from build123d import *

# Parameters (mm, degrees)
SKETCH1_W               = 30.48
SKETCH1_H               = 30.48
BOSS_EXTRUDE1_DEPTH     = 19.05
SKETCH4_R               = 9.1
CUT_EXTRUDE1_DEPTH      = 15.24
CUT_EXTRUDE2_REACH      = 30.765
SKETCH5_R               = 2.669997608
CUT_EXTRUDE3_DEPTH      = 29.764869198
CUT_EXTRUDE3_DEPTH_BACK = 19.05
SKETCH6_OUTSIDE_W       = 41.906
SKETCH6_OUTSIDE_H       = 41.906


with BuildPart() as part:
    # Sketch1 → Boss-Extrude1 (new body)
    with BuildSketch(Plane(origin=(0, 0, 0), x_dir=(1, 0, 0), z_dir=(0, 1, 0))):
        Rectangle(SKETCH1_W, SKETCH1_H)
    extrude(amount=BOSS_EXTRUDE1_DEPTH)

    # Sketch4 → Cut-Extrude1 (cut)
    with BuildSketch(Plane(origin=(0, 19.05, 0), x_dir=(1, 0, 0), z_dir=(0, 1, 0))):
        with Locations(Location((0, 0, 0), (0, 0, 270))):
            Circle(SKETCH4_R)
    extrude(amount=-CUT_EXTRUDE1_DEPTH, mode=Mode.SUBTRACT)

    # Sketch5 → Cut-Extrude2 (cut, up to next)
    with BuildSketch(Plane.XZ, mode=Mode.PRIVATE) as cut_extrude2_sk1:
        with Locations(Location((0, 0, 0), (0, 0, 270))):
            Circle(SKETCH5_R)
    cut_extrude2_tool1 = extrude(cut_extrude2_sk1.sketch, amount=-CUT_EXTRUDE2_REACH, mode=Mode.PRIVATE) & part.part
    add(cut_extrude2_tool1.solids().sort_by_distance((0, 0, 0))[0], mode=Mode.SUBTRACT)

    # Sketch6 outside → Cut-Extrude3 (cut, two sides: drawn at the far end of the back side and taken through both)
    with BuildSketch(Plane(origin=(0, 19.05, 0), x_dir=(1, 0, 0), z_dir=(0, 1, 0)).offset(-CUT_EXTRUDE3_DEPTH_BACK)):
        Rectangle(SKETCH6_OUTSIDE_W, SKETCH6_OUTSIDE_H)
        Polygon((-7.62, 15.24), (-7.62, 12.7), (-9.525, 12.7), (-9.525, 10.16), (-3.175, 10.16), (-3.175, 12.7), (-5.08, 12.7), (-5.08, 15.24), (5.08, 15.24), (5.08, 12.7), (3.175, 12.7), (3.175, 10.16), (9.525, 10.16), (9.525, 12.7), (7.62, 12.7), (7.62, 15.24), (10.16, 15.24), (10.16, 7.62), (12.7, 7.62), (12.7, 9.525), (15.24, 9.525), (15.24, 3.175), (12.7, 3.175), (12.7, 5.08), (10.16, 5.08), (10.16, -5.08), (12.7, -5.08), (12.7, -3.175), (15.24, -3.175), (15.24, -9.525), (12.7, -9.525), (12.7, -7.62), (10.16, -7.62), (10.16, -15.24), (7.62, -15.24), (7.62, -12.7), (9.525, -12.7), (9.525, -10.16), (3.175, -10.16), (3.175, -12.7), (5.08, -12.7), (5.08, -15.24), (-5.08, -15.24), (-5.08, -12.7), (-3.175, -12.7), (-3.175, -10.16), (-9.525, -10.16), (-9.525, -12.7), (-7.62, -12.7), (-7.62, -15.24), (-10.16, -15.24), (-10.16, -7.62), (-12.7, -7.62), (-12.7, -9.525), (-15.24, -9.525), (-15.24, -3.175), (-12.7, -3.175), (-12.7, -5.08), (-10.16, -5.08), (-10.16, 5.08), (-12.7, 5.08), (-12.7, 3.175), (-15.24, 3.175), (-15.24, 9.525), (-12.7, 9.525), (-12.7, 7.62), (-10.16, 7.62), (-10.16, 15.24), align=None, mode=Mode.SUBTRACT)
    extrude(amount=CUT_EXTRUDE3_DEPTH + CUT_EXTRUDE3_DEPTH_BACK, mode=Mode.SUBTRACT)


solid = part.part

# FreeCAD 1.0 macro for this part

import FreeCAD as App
import Part
import Sketcher
Q = App.Units.Quantity

doc = App.newDocument("Part")
body = doc.addObject("PartDesign::Body", "Body")

# Sketch on XZ plane
sketch1 = body.newObject("Sketcher::SketchObject", "Sketch")
sketch1.AttachmentSupport = (doc.getObject("XZ_Plane"), [""])
sketch1.MapMode = "FlatFace"
sketch1.addGeometry([
    Part.LineSegment(App.Vector(-15, -15, 0), App.Vector(-15, 15, 0)),
    Part.LineSegment(App.Vector(-15, 15, 0), App.Vector(15, 15, 0)),
    Part.LineSegment(App.Vector(15, 15, 0), App.Vector(15, -15, 0)),
    Part.LineSegment(App.Vector(15, -15, 0), App.Vector(-15, -15, 0)),
], False)
sketch1.addConstraint([
    Sketcher.Constraint("Coincident", 0, 2, 1, 1),
    Sketcher.Constraint("Coincident", 1, 2, 2, 1),
    Sketcher.Constraint("Coincident", 2, 2, 3, 1),
    Sketcher.Constraint("Coincident", 3, 2, 0, 1),
    Sketcher.Constraint("Vertical", 0),
    Sketcher.Constraint("Horizontal", 1),
    Sketcher.Constraint("Vertical", 2),
    Sketcher.Constraint("Horizontal", 3),
    Sketcher.Constraint("Symmetric", 0, 2, 2, 2, -1, 1),
    Sketcher.Constraint("Equal", 3, 0),
    Sketcher.Constraint("DistanceX", 1, 1, 1, 2, Q("1.2 in")),
])
pad1 = body.newObject("PartDesign::Pad", "Pad")
pad1.Profile = sketch1
pad1.Length = Q("0.75 in")
pad1.Reversed = True

# Sketch on XZ plane
sketch2 = body.newObject("Sketcher::SketchObject", "Sketch001")
sketch2.AttachmentSupport = (doc.getObject("XZ_Plane"), [""])
sketch2.MapMode = "FlatFace"
sketch2.AttachmentOffset = App.Placement(App.Vector(0, 0, -0.75 * 25.4), App.Rotation())
sketch2.addGeometry(Part.Circle(App.Vector(0, 0, 0), App.Vector(0, 0, 1), 9), False)
sketch2.addConstraint([
    Sketcher.Constraint("Coincident", 0, 3, -1, 1),
    Sketcher.Constraint("Diameter", 0, Q("18.2 mm")),
])
pocket1 = body.newObject("PartDesign::Pocket", "Pocket")
pocket1.Profile = sketch2
pocket1.Length = Q("0.6 in")
pocket1.Reversed = True

# Sketch on XZ plane
sketch3 = body.newObject("Sketcher::SketchObject", "Sketch002")
sketch3.AttachmentSupport = (doc.getObject("XZ_Plane"), [""])
sketch3.MapMode = "FlatFace"
sketch3.addGeometry(Part.Circle(App.Vector(0, 0, 0), App.Vector(0, 0, 1), 2.7), False)
sketch3.addConstraint([
    Sketcher.Constraint("Coincident", 0, 3, -1, 1),
    Sketcher.Constraint("Diameter", 0, Q("5.339995 mm")),
])
pocket2 = body.newObject("PartDesign::Pocket", "Pocket001")
pocket2.Profile = sketch3
pocket2.Type = "UpToFirst"

# Sketch on XZ plane
sketch4 = body.newObject("Sketcher::SketchObject", "Sketch003")
sketch4.AttachmentSupport = (doc.getObject("XZ_Plane"), [""])
sketch4.MapMode = "FlatFace"
sketch4.AttachmentOffset = App.Placement(App.Vector(0, 0, -0.75 * 25.4), App.Rotation())
sketch4.addGeometry([
    Part.LineSegment(App.Vector(-21, -21, 0), App.Vector(-21, 21, 0)),  # 0
    Part.LineSegment(App.Vector(-21, 21, 0), App.Vector(21, 21, 0)),  # 1
    Part.LineSegment(App.Vector(21, 21, 0), App.Vector(21, -21, 0)),  # 2
    Part.LineSegment(App.Vector(21, -21, 0), App.Vector(-21, -21, 0)),  # 3
    Part.LineSegment(App.Vector(-10.2, -15.2, 0), App.Vector(-7.6, -15.2, 0)),  # 4
    Part.LineSegment(App.Vector(-7.6, -15.2, 0), App.Vector(-7.6, -12.7, 0)),  # 5
    Part.LineSegment(App.Vector(-7.6, -12.7, 0), App.Vector(-9.5, -12.7, 0)),  # 6
    Part.LineSegment(App.Vector(-9.5, -12.7, 0), App.Vector(-9.5, -10.2, 0)),  # 7
    Part.LineSegment(App.Vector(-9.5, -10.2, 0), App.Vector(-3.2, -10.2, 0)),  # 8
    Part.LineSegment(App.Vector(-3.2, -10.2, 0), App.Vector(-3.2, -12.7, 0)),  # 9
    Part.LineSegment(App.Vector(-3.2, -12.7, 0), App.Vector(-5.1, -12.7, 0)),  # 10
    Part.LineSegment(App.Vector(-5.1, -12.7, 0), App.Vector(-5.1, -15.2, 0)),  # 11
    Part.LineSegment(App.Vector(-5.1, -15.2, 0), App.Vector(5.1, -15.2, 0)),  # 12
    Part.LineSegment(App.Vector(5.1, -15.2, 0), App.Vector(5.1, -12.7, 0)),  # 13
    Part.LineSegment(App.Vector(5.1, -12.7, 0), App.Vector(3.2, -12.7, 0)),  # 14
    Part.LineSegment(App.Vector(3.2, -12.7, 0), App.Vector(3.2, -10.2, 0)),  # 15
    Part.LineSegment(App.Vector(3.2, -10.2, 0), App.Vector(9.5, -10.2, 0)),  # 16
    Part.LineSegment(App.Vector(9.5, -10.2, 0), App.Vector(9.5, -12.7, 0)),  # 17
    Part.LineSegment(App.Vector(9.5, -12.7, 0), App.Vector(7.6, -12.7, 0)),  # 18
    Part.LineSegment(App.Vector(7.6, -12.7, 0), App.Vector(7.6, -15.2, 0)),  # 19
    Part.LineSegment(App.Vector(7.6, -15.2, 0), App.Vector(10.2, -15.2, 0)),  # 20
    Part.LineSegment(App.Vector(10.2, -15.2, 0), App.Vector(10.2, -7.6, 0)),  # 21
    Part.LineSegment(App.Vector(10.2, -7.6, 0), App.Vector(12.7, -7.6, 0)),  # 22
    Part.LineSegment(App.Vector(12.7, -7.6, 0), App.Vector(12.7, -9.5, 0)),  # 23
    Part.LineSegment(App.Vector(12.7, -9.5, 0), App.Vector(15.2, -9.5, 0)),  # 24
    Part.LineSegment(App.Vector(15.2, -9.5, 0), App.Vector(15.2, -3.2, 0)),  # 25
    Part.LineSegment(App.Vector(15.2, -3.2, 0), App.Vector(12.7, -3.2, 0)),  # 26
    Part.LineSegment(App.Vector(12.7, -3.2, 0), App.Vector(12.7, -5.1, 0)),  # 27
    Part.LineSegment(App.Vector(12.7, -5.1, 0), App.Vector(10.2, -5.1, 0)),  # 28
    Part.LineSegment(App.Vector(10.2, -5.1, 0), App.Vector(10.2, 5.1, 0)),  # 29
    Part.LineSegment(App.Vector(10.2, 5.1, 0), App.Vector(12.7, 5.1, 0)),  # 30
    Part.LineSegment(App.Vector(12.7, 5.1, 0), App.Vector(12.7, 3.2, 0)),  # 31
    Part.LineSegment(App.Vector(12.7, 3.2, 0), App.Vector(15.2, 3.2, 0)),  # 32
    Part.LineSegment(App.Vector(15.2, 3.2, 0), App.Vector(15.2, 9.5, 0)),  # 33
    Part.LineSegment(App.Vector(15.2, 9.5, 0), App.Vector(12.7, 9.5, 0)),  # 34
    Part.LineSegment(App.Vector(12.7, 9.5, 0), App.Vector(12.7, 7.6, 0)),  # 35
    Part.LineSegment(App.Vector(12.7, 7.6, 0), App.Vector(10.2, 7.6, 0)),  # 36
    Part.LineSegment(App.Vector(10.2, 7.6, 0), App.Vector(10.2, 15.2, 0)),  # 37
    Part.LineSegment(App.Vector(10.2, 15.2, 0), App.Vector(7.6, 15.2, 0)),  # 38
    Part.LineSegment(App.Vector(7.6, 15.2, 0), App.Vector(7.6, 12.7, 0)),  # 39
    Part.LineSegment(App.Vector(7.6, 12.7, 0), App.Vector(9.5, 12.7, 0)),  # 40
    Part.LineSegment(App.Vector(9.5, 12.7, 0), App.Vector(9.5, 10.2, 0)),  # 41
    Part.LineSegment(App.Vector(9.5, 10.2, 0), App.Vector(3.2, 10.2, 0)),  # 42
    Part.LineSegment(App.Vector(3.2, 10.2, 0), App.Vector(3.2, 12.7, 0)),  # 43
    Part.LineSegment(App.Vector(3.2, 12.7, 0), App.Vector(5.1, 12.7, 0)),  # 44
    Part.LineSegment(App.Vector(5.1, 12.7, 0), App.Vector(5.1, 15.2, 0)),  # 45
    Part.LineSegment(App.Vector(5.1, 15.2, 0), App.Vector(-5.1, 15.2, 0)),  # 46
    Part.LineSegment(App.Vector(-5.1, 15.2, 0), App.Vector(-5.1, 12.7, 0)),  # 47
    Part.LineSegment(App.Vector(-5.1, 12.7, 0), App.Vector(-3.2, 12.7, 0)),  # 48
    Part.LineSegment(App.Vector(-3.2, 12.7, 0), App.Vector(-3.2, 10.2, 0)),  # 49
    Part.LineSegment(App.Vector(-3.2, 10.2, 0), App.Vector(-9.5, 10.2, 0)),  # 50
    Part.LineSegment(App.Vector(-9.5, 10.2, 0), App.Vector(-9.5, 12.7, 0)),  # 51
    Part.LineSegment(App.Vector(-9.5, 12.7, 0), App.Vector(-7.6, 12.7, 0)),  # 52
    Part.LineSegment(App.Vector(-7.6, 12.7, 0), App.Vector(-7.6, 15.2, 0)),  # 53
    Part.LineSegment(App.Vector(-7.6, 15.2, 0), App.Vector(-10.2, 15.2, 0)),  # 54
    Part.LineSegment(App.Vector(-10.2, 15.2, 0), App.Vector(-10.2, 7.6, 0)),  # 55
    Part.LineSegment(App.Vector(-10.2, 7.6, 0), App.Vector(-12.7, 7.6, 0)),  # 56
    Part.LineSegment(App.Vector(-12.7, 7.6, 0), App.Vector(-12.7, 9.5, 0)),  # 57
    Part.LineSegment(App.Vector(-12.7, 9.5, 0), App.Vector(-15.2, 9.5, 0)),  # 58
    Part.LineSegment(App.Vector(-15.2, 9.5, 0), App.Vector(-15.2, 3.2, 0)),  # 59
    Part.LineSegment(App.Vector(-15.2, 3.2, 0), App.Vector(-12.7, 3.2, 0)),  # 60
    Part.LineSegment(App.Vector(-12.7, 3.2, 0), App.Vector(-12.7, 5.1, 0)),  # 61
    Part.LineSegment(App.Vector(-12.7, 5.1, 0), App.Vector(-10.2, 5.1, 0)),  # 62
    Part.LineSegment(App.Vector(-10.2, 5.1, 0), App.Vector(-10.2, -5.1, 0)),  # 63
    Part.LineSegment(App.Vector(-10.2, -5.1, 0), App.Vector(-12.7, -5.1, 0)),  # 64
    Part.LineSegment(App.Vector(-12.7, -5.1, 0), App.Vector(-12.7, -3.2, 0)),  # 65
    Part.LineSegment(App.Vector(-12.7, -3.2, 0), App.Vector(-15.2, -3.2, 0)),  # 66
    Part.LineSegment(App.Vector(-15.2, -3.2, 0), App.Vector(-15.2, -9.5, 0)),  # 67
    Part.LineSegment(App.Vector(-15.2, -9.5, 0), App.Vector(-12.7, -9.5, 0)),  # 68
    Part.LineSegment(App.Vector(-12.7, -9.5, 0), App.Vector(-12.7, -7.6, 0)),  # 69
    Part.LineSegment(App.Vector(-12.7, -7.6, 0), App.Vector(-10.2, -7.6, 0)),  # 70
    Part.LineSegment(App.Vector(-10.2, -7.6, 0), App.Vector(-10.2, -15.2, 0)),  # 71
], False)
sketch4.addConstraint([
    Sketcher.Constraint("Coincident", 0, 2, 1, 1),
    Sketcher.Constraint("Coincident", 1, 2, 2, 1),
    Sketcher.Constraint("Coincident", 2, 2, 3, 1),
    Sketcher.Constraint("Coincident", 3, 2, 0, 1),
    Sketcher.Constraint("Coincident", 4, 2, 5, 1),
    Sketcher.Constraint("Coincident", 5, 2, 6, 1),
    Sketcher.Constraint("Coincident", 6, 2, 7, 1),
    Sketcher.Constraint("Coincident", 7, 2, 8, 1),
    Sketcher.Constraint("Coincident", 8, 2, 9, 1),
    Sketcher.Constraint("Coincident", 9, 2, 10, 1),
    Sketcher.Constraint("Coincident", 10, 2, 11, 1),
    Sketcher.Constraint("Coincident", 11, 2, 12, 1),
    Sketcher.Constraint("Coincident", 12, 2, 13, 1),
    Sketcher.Constraint("Coincident", 13, 2, 14, 1),
    Sketcher.Constraint("Coincident", 14, 2, 15, 1),
    Sketcher.Constraint("Coincident", 15, 2, 16, 1),
    Sketcher.Constraint("Coincident", 16, 2, 17, 1),
    Sketcher.Constraint("Coincident", 17, 2, 18, 1),
    Sketcher.Constraint("Coincident", 18, 2, 19, 1),
    Sketcher.Constraint("Coincident", 19, 2, 20, 1),
    Sketcher.Constraint("Coincident", 20, 2, 21, 1),
    Sketcher.Constraint("Coincident", 21, 2, 22, 1),
    Sketcher.Constraint("Coincident", 22, 2, 23, 1),
    Sketcher.Constraint("Coincident", 23, 2, 24, 1),
    Sketcher.Constraint("Coincident", 24, 2, 25, 1),
    Sketcher.Constraint("Coincident", 25, 2, 26, 1),
    Sketcher.Constraint("Coincident", 26, 2, 27, 1),
    Sketcher.Constraint("Coincident", 27, 2, 28, 1),
    Sketcher.Constraint("Coincident", 28, 2, 29, 1),
    Sketcher.Constraint("Coincident", 29, 2, 30, 1),
    Sketcher.Constraint("Coincident", 30, 2, 31, 1),
    Sketcher.Constraint("Coincident", 31, 2, 32, 1),
    Sketcher.Constraint("Coincident", 32, 2, 33, 1),
    Sketcher.Constraint("Coincident", 33, 2, 34, 1),
    Sketcher.Constraint("Coincident", 34, 2, 35, 1),
    Sketcher.Constraint("Coincident", 35, 2, 36, 1),
    Sketcher.Constraint("Coincident", 36, 2, 37, 1),
    Sketcher.Constraint("Coincident", 37, 2, 38, 1),
    Sketcher.Constraint("Coincident", 38, 2, 39, 1),
    Sketcher.Constraint("Coincident", 39, 2, 40, 1),
    Sketcher.Constraint("Coincident", 40, 2, 41, 1),
    Sketcher.Constraint("Coincident", 41, 2, 42, 1),
    Sketcher.Constraint("Coincident", 42, 2, 43, 1),
    Sketcher.Constraint("Coincident", 43, 2, 44, 1),
    Sketcher.Constraint("Coincident", 44, 2, 45, 1),
    Sketcher.Constraint("Coincident", 45, 2, 46, 1),
    Sketcher.Constraint("Coincident", 46, 2, 47, 1),
    Sketcher.Constraint("Coincident", 47, 2, 48, 1),
    Sketcher.Constraint("Coincident", 48, 2, 49, 1),
    Sketcher.Constraint("Coincident", 49, 2, 50, 1),
    Sketcher.Constraint("Coincident", 50, 2, 51, 1),
    Sketcher.Constraint("Coincident", 51, 2, 52, 1),
    Sketcher.Constraint("Coincident", 52, 2, 53, 1),
    Sketcher.Constraint("Coincident", 53, 2, 54, 1),
    Sketcher.Constraint("Coincident", 54, 2, 55, 1),
    Sketcher.Constraint("Coincident", 55, 2, 56, 1),
    Sketcher.Constraint("Coincident", 56, 2, 57, 1),
    Sketcher.Constraint("Coincident", 57, 2, 58, 1),
    Sketcher.Constraint("Coincident", 58, 2, 59, 1),
    Sketcher.Constraint("Coincident", 59, 2, 60, 1),
    Sketcher.Constraint("Coincident", 60, 2, 61, 1),
    Sketcher.Constraint("Coincident", 61, 2, 62, 1),
    Sketcher.Constraint("Coincident", 62, 2, 63, 1),
    Sketcher.Constraint("Coincident", 63, 2, 64, 1),
    Sketcher.Constraint("Coincident", 64, 2, 65, 1),
    Sketcher.Constraint("Coincident", 65, 2, 66, 1),
    Sketcher.Constraint("Coincident", 66, 2, 67, 1),
    Sketcher.Constraint("Coincident", 67, 2, 68, 1),
    Sketcher.Constraint("Coincident", 68, 2, 69, 1),
    Sketcher.Constraint("Coincident", 69, 2, 70, 1),
    Sketcher.Constraint("Coincident", 70, 2, 71, 1),
    Sketcher.Constraint("Coincident", 71, 2, 4, 1),
    Sketcher.Constraint("Vertical", 0),
    Sketcher.Constraint("Horizontal", 1),
    Sketcher.Constraint("Vertical", 2),
    Sketcher.Constraint("Horizontal", 3),
    Sketcher.Constraint("Horizontal", 4),
    Sketcher.Constraint("Vertical", 5),
    Sketcher.Constraint("Horizontal", 6),
    Sketcher.Constraint("Vertical", 7),
    Sketcher.Constraint("Horizontal", 8),
    Sketcher.Constraint("Vertical", 9),
    Sketcher.Constraint("Horizontal", 10),
    Sketcher.Constraint("Vertical", 11),
    Sketcher.Constraint("Horizontal", 12),
    Sketcher.Constraint("Vertical", 13),
    Sketcher.Constraint("Horizontal", 14),
    Sketcher.Constraint("Vertical", 15),
    Sketcher.Constraint("Horizontal", 16),
    Sketcher.Constraint("Vertical", 17),
    Sketcher.Constraint("Horizontal", 18),
    Sketcher.Constraint("Vertical", 19),
    Sketcher.Constraint("Horizontal", 20),
    Sketcher.Constraint("Vertical", 21),
    Sketcher.Constraint("Horizontal", 22),
    Sketcher.Constraint("Vertical", 23),
    Sketcher.Constraint("Horizontal", 24),
    Sketcher.Constraint("Vertical", 25),
    Sketcher.Constraint("Horizontal", 26),
    Sketcher.Constraint("Vertical", 27),
    Sketcher.Constraint("Horizontal", 28),
    Sketcher.Constraint("Vertical", 29),
    Sketcher.Constraint("Horizontal", 30),
    Sketcher.Constraint("Vertical", 31),
    Sketcher.Constraint("Horizontal", 32),
    Sketcher.Constraint("Vertical", 33),
    Sketcher.Constraint("Horizontal", 34),
    Sketcher.Constraint("Vertical", 35),
    Sketcher.Constraint("Horizontal", 36),
    Sketcher.Constraint("Vertical", 37),
    Sketcher.Constraint("Horizontal", 38),
    Sketcher.Constraint("Vertical", 39),
    Sketcher.Constraint("Horizontal", 40),
    Sketcher.Constraint("Vertical", 41),
    Sketcher.Constraint("Horizontal", 42),
    Sketcher.Constraint("Vertical", 43),
    Sketcher.Constraint("Horizontal", 44),
    Sketcher.Constraint("Vertical", 45),
    Sketcher.Constraint("Horizontal", 46),
    Sketcher.Constraint("Vertical", 47),
    Sketcher.Constraint("Horizontal", 48),
    Sketcher.Constraint("Vertical", 49),
    Sketcher.Constraint("Horizontal", 50),
    Sketcher.Constraint("Vertical", 51),
    Sketcher.Constraint("Horizontal", 52),
    Sketcher.Constraint("Vertical", 53),
    Sketcher.Constraint("Horizontal", 54),
    Sketcher.Constraint("Vertical", 55),
    Sketcher.Constraint("Horizontal", 56),
    Sketcher.Constraint("Vertical", 57),
    Sketcher.Constraint("Horizontal", 58),
    Sketcher.Constraint("Vertical", 59),
    Sketcher.Constraint("Horizontal", 60),
    Sketcher.Constraint("Vertical", 61),
    Sketcher.Constraint("Horizontal", 62),
    Sketcher.Constraint("Vertical", 63),
    Sketcher.Constraint("Horizontal", 64),
    Sketcher.Constraint("Vertical", 65),
    Sketcher.Constraint("Horizontal", 66),
    Sketcher.Constraint("Vertical", 67),
    Sketcher.Constraint("Horizontal", 68),
    Sketcher.Constraint("Vertical", 69),
    Sketcher.Constraint("Horizontal", 70),
    Sketcher.Constraint("Vertical", 71),
    Sketcher.Constraint("Symmetric", 0, 2, 2, 2, -1, 1),
    Sketcher.Constraint("Symmetric", 4, 2, 38, 2, -1, 1),
    Sketcher.Constraint("Symmetric", 6, 2, 40, 2, -1, 1),
    Sketcher.Constraint("Symmetric", 8, 2, 42, 2, -1, 1),
    Sketcher.Constraint("Symmetric", 10, 2, 44, 2, -1, 1),
    Sketcher.Constraint("Symmetric", 12, 2, 46, 2, -1, 1),
    Sketcher.Constraint("Symmetric", 14, 2, 48, 2, -1, 1),
    Sketcher.Constraint("Symmetric", 16, 2, 50, 2, -1, 1),
    Sketcher.Constraint("Symmetric", 18, 2, 52, 2, -1, 1),
    Sketcher.Constraint("Symmetric", 20, 2, 54, 2, -1, 1),
    Sketcher.Constraint("Symmetric", 22, 2, 56, 2, -1, 1),
    Sketcher.Constraint("Symmetric", 24, 2, 58, 2, -1, 1),
    Sketcher.Constraint("Symmetric", 26, 2, 60, 2, -1, 1),
    Sketcher.Constraint("Symmetric", 28, 2, 62, 2, -1, 1),
    Sketcher.Constraint("Symmetric", 30, 2, 64, 2, -1, 1),
    Sketcher.Constraint("Symmetric", 32, 2, 66, 2, -1, 1),
    Sketcher.Constraint("Symmetric", 34, 2, 68, 2, -1, 1),
    Sketcher.Constraint("Symmetric", 36, 2, 70, 2, -1, 1),
    Sketcher.Constraint("Symmetric", 10, 2, 13, 2, -2),
    Sketcher.Constraint("Symmetric", 8, 2, 15, 2, -2),
    Sketcher.Constraint("Symmetric", 6, 2, 17, 2, -2),
    Sketcher.Constraint("Symmetric", 4, 2, 19, 2, -2),
    Sketcher.Constraint("Symmetric", 36, 2, 55, 2, -2),
    Sketcher.Constraint("Symmetric", 34, 2, 57, 2, -2),
    Sketcher.Constraint("Symmetric", 32, 2, 59, 2, -2),
    Sketcher.Constraint("Symmetric", 30, 2, 61, 2, -2),
    Sketcher.Constraint("Horizontal", 6, 2, 9, 2),
    Sketcher.Constraint("Horizontal", 4, 2, 11, 2),
    Sketcher.Constraint("Vertical", 23, 2, 26, 2),
    Sketcher.Constraint("Vertical", 21, 2, 28, 2),
    Sketcher.Constraint("Equal", 6, 10),
    Sketcher.Constraint("Equal", 20, 22),
    Sketcher.Constraint("Equal", 22, 24),
    Sketcher.Constraint("Equal", 3, 0),
    Sketcher.Constraint("Equal", 70, 5),
    Sketcher.Constraint("Equal", 5, 7),
    Sketcher.Constraint("Equal", 52, 23),
    Sketcher.Constraint("Equal", 50, 25),
    Sketcher.Constraint("Equal", 23, 27),
    Sketcher.Constraint("Equal", 46, 29),
    Sketcher.Constraint("DistanceX", 4, 1, 4, 2, Q("0.1 in")),
    Sketcher.Constraint("DistanceX", 12, 1, 12, 2, Q("0.4 in")),
    Sketcher.Constraint("DistanceY", 21, 1, 21, 2, Q("0.3 in")),
    Sketcher.Constraint("DistanceX", 8, 1, 8, 2, Q("0.25 in")),
    Sketcher.Constraint("DistanceX", 4, 2, -1, 1, Q("0.3 in")),
    Sketcher.Constraint("DistanceX", 1, 1, 1, 2, Q("41.906 mm")),
])
pocket3 = body.newObject("PartDesign::Pocket", "Pocket002")
pocket3.Profile = sketch4
pocket3.Type = "ThroughAll"
pocket3.Midplane = True

doc.recompute()
